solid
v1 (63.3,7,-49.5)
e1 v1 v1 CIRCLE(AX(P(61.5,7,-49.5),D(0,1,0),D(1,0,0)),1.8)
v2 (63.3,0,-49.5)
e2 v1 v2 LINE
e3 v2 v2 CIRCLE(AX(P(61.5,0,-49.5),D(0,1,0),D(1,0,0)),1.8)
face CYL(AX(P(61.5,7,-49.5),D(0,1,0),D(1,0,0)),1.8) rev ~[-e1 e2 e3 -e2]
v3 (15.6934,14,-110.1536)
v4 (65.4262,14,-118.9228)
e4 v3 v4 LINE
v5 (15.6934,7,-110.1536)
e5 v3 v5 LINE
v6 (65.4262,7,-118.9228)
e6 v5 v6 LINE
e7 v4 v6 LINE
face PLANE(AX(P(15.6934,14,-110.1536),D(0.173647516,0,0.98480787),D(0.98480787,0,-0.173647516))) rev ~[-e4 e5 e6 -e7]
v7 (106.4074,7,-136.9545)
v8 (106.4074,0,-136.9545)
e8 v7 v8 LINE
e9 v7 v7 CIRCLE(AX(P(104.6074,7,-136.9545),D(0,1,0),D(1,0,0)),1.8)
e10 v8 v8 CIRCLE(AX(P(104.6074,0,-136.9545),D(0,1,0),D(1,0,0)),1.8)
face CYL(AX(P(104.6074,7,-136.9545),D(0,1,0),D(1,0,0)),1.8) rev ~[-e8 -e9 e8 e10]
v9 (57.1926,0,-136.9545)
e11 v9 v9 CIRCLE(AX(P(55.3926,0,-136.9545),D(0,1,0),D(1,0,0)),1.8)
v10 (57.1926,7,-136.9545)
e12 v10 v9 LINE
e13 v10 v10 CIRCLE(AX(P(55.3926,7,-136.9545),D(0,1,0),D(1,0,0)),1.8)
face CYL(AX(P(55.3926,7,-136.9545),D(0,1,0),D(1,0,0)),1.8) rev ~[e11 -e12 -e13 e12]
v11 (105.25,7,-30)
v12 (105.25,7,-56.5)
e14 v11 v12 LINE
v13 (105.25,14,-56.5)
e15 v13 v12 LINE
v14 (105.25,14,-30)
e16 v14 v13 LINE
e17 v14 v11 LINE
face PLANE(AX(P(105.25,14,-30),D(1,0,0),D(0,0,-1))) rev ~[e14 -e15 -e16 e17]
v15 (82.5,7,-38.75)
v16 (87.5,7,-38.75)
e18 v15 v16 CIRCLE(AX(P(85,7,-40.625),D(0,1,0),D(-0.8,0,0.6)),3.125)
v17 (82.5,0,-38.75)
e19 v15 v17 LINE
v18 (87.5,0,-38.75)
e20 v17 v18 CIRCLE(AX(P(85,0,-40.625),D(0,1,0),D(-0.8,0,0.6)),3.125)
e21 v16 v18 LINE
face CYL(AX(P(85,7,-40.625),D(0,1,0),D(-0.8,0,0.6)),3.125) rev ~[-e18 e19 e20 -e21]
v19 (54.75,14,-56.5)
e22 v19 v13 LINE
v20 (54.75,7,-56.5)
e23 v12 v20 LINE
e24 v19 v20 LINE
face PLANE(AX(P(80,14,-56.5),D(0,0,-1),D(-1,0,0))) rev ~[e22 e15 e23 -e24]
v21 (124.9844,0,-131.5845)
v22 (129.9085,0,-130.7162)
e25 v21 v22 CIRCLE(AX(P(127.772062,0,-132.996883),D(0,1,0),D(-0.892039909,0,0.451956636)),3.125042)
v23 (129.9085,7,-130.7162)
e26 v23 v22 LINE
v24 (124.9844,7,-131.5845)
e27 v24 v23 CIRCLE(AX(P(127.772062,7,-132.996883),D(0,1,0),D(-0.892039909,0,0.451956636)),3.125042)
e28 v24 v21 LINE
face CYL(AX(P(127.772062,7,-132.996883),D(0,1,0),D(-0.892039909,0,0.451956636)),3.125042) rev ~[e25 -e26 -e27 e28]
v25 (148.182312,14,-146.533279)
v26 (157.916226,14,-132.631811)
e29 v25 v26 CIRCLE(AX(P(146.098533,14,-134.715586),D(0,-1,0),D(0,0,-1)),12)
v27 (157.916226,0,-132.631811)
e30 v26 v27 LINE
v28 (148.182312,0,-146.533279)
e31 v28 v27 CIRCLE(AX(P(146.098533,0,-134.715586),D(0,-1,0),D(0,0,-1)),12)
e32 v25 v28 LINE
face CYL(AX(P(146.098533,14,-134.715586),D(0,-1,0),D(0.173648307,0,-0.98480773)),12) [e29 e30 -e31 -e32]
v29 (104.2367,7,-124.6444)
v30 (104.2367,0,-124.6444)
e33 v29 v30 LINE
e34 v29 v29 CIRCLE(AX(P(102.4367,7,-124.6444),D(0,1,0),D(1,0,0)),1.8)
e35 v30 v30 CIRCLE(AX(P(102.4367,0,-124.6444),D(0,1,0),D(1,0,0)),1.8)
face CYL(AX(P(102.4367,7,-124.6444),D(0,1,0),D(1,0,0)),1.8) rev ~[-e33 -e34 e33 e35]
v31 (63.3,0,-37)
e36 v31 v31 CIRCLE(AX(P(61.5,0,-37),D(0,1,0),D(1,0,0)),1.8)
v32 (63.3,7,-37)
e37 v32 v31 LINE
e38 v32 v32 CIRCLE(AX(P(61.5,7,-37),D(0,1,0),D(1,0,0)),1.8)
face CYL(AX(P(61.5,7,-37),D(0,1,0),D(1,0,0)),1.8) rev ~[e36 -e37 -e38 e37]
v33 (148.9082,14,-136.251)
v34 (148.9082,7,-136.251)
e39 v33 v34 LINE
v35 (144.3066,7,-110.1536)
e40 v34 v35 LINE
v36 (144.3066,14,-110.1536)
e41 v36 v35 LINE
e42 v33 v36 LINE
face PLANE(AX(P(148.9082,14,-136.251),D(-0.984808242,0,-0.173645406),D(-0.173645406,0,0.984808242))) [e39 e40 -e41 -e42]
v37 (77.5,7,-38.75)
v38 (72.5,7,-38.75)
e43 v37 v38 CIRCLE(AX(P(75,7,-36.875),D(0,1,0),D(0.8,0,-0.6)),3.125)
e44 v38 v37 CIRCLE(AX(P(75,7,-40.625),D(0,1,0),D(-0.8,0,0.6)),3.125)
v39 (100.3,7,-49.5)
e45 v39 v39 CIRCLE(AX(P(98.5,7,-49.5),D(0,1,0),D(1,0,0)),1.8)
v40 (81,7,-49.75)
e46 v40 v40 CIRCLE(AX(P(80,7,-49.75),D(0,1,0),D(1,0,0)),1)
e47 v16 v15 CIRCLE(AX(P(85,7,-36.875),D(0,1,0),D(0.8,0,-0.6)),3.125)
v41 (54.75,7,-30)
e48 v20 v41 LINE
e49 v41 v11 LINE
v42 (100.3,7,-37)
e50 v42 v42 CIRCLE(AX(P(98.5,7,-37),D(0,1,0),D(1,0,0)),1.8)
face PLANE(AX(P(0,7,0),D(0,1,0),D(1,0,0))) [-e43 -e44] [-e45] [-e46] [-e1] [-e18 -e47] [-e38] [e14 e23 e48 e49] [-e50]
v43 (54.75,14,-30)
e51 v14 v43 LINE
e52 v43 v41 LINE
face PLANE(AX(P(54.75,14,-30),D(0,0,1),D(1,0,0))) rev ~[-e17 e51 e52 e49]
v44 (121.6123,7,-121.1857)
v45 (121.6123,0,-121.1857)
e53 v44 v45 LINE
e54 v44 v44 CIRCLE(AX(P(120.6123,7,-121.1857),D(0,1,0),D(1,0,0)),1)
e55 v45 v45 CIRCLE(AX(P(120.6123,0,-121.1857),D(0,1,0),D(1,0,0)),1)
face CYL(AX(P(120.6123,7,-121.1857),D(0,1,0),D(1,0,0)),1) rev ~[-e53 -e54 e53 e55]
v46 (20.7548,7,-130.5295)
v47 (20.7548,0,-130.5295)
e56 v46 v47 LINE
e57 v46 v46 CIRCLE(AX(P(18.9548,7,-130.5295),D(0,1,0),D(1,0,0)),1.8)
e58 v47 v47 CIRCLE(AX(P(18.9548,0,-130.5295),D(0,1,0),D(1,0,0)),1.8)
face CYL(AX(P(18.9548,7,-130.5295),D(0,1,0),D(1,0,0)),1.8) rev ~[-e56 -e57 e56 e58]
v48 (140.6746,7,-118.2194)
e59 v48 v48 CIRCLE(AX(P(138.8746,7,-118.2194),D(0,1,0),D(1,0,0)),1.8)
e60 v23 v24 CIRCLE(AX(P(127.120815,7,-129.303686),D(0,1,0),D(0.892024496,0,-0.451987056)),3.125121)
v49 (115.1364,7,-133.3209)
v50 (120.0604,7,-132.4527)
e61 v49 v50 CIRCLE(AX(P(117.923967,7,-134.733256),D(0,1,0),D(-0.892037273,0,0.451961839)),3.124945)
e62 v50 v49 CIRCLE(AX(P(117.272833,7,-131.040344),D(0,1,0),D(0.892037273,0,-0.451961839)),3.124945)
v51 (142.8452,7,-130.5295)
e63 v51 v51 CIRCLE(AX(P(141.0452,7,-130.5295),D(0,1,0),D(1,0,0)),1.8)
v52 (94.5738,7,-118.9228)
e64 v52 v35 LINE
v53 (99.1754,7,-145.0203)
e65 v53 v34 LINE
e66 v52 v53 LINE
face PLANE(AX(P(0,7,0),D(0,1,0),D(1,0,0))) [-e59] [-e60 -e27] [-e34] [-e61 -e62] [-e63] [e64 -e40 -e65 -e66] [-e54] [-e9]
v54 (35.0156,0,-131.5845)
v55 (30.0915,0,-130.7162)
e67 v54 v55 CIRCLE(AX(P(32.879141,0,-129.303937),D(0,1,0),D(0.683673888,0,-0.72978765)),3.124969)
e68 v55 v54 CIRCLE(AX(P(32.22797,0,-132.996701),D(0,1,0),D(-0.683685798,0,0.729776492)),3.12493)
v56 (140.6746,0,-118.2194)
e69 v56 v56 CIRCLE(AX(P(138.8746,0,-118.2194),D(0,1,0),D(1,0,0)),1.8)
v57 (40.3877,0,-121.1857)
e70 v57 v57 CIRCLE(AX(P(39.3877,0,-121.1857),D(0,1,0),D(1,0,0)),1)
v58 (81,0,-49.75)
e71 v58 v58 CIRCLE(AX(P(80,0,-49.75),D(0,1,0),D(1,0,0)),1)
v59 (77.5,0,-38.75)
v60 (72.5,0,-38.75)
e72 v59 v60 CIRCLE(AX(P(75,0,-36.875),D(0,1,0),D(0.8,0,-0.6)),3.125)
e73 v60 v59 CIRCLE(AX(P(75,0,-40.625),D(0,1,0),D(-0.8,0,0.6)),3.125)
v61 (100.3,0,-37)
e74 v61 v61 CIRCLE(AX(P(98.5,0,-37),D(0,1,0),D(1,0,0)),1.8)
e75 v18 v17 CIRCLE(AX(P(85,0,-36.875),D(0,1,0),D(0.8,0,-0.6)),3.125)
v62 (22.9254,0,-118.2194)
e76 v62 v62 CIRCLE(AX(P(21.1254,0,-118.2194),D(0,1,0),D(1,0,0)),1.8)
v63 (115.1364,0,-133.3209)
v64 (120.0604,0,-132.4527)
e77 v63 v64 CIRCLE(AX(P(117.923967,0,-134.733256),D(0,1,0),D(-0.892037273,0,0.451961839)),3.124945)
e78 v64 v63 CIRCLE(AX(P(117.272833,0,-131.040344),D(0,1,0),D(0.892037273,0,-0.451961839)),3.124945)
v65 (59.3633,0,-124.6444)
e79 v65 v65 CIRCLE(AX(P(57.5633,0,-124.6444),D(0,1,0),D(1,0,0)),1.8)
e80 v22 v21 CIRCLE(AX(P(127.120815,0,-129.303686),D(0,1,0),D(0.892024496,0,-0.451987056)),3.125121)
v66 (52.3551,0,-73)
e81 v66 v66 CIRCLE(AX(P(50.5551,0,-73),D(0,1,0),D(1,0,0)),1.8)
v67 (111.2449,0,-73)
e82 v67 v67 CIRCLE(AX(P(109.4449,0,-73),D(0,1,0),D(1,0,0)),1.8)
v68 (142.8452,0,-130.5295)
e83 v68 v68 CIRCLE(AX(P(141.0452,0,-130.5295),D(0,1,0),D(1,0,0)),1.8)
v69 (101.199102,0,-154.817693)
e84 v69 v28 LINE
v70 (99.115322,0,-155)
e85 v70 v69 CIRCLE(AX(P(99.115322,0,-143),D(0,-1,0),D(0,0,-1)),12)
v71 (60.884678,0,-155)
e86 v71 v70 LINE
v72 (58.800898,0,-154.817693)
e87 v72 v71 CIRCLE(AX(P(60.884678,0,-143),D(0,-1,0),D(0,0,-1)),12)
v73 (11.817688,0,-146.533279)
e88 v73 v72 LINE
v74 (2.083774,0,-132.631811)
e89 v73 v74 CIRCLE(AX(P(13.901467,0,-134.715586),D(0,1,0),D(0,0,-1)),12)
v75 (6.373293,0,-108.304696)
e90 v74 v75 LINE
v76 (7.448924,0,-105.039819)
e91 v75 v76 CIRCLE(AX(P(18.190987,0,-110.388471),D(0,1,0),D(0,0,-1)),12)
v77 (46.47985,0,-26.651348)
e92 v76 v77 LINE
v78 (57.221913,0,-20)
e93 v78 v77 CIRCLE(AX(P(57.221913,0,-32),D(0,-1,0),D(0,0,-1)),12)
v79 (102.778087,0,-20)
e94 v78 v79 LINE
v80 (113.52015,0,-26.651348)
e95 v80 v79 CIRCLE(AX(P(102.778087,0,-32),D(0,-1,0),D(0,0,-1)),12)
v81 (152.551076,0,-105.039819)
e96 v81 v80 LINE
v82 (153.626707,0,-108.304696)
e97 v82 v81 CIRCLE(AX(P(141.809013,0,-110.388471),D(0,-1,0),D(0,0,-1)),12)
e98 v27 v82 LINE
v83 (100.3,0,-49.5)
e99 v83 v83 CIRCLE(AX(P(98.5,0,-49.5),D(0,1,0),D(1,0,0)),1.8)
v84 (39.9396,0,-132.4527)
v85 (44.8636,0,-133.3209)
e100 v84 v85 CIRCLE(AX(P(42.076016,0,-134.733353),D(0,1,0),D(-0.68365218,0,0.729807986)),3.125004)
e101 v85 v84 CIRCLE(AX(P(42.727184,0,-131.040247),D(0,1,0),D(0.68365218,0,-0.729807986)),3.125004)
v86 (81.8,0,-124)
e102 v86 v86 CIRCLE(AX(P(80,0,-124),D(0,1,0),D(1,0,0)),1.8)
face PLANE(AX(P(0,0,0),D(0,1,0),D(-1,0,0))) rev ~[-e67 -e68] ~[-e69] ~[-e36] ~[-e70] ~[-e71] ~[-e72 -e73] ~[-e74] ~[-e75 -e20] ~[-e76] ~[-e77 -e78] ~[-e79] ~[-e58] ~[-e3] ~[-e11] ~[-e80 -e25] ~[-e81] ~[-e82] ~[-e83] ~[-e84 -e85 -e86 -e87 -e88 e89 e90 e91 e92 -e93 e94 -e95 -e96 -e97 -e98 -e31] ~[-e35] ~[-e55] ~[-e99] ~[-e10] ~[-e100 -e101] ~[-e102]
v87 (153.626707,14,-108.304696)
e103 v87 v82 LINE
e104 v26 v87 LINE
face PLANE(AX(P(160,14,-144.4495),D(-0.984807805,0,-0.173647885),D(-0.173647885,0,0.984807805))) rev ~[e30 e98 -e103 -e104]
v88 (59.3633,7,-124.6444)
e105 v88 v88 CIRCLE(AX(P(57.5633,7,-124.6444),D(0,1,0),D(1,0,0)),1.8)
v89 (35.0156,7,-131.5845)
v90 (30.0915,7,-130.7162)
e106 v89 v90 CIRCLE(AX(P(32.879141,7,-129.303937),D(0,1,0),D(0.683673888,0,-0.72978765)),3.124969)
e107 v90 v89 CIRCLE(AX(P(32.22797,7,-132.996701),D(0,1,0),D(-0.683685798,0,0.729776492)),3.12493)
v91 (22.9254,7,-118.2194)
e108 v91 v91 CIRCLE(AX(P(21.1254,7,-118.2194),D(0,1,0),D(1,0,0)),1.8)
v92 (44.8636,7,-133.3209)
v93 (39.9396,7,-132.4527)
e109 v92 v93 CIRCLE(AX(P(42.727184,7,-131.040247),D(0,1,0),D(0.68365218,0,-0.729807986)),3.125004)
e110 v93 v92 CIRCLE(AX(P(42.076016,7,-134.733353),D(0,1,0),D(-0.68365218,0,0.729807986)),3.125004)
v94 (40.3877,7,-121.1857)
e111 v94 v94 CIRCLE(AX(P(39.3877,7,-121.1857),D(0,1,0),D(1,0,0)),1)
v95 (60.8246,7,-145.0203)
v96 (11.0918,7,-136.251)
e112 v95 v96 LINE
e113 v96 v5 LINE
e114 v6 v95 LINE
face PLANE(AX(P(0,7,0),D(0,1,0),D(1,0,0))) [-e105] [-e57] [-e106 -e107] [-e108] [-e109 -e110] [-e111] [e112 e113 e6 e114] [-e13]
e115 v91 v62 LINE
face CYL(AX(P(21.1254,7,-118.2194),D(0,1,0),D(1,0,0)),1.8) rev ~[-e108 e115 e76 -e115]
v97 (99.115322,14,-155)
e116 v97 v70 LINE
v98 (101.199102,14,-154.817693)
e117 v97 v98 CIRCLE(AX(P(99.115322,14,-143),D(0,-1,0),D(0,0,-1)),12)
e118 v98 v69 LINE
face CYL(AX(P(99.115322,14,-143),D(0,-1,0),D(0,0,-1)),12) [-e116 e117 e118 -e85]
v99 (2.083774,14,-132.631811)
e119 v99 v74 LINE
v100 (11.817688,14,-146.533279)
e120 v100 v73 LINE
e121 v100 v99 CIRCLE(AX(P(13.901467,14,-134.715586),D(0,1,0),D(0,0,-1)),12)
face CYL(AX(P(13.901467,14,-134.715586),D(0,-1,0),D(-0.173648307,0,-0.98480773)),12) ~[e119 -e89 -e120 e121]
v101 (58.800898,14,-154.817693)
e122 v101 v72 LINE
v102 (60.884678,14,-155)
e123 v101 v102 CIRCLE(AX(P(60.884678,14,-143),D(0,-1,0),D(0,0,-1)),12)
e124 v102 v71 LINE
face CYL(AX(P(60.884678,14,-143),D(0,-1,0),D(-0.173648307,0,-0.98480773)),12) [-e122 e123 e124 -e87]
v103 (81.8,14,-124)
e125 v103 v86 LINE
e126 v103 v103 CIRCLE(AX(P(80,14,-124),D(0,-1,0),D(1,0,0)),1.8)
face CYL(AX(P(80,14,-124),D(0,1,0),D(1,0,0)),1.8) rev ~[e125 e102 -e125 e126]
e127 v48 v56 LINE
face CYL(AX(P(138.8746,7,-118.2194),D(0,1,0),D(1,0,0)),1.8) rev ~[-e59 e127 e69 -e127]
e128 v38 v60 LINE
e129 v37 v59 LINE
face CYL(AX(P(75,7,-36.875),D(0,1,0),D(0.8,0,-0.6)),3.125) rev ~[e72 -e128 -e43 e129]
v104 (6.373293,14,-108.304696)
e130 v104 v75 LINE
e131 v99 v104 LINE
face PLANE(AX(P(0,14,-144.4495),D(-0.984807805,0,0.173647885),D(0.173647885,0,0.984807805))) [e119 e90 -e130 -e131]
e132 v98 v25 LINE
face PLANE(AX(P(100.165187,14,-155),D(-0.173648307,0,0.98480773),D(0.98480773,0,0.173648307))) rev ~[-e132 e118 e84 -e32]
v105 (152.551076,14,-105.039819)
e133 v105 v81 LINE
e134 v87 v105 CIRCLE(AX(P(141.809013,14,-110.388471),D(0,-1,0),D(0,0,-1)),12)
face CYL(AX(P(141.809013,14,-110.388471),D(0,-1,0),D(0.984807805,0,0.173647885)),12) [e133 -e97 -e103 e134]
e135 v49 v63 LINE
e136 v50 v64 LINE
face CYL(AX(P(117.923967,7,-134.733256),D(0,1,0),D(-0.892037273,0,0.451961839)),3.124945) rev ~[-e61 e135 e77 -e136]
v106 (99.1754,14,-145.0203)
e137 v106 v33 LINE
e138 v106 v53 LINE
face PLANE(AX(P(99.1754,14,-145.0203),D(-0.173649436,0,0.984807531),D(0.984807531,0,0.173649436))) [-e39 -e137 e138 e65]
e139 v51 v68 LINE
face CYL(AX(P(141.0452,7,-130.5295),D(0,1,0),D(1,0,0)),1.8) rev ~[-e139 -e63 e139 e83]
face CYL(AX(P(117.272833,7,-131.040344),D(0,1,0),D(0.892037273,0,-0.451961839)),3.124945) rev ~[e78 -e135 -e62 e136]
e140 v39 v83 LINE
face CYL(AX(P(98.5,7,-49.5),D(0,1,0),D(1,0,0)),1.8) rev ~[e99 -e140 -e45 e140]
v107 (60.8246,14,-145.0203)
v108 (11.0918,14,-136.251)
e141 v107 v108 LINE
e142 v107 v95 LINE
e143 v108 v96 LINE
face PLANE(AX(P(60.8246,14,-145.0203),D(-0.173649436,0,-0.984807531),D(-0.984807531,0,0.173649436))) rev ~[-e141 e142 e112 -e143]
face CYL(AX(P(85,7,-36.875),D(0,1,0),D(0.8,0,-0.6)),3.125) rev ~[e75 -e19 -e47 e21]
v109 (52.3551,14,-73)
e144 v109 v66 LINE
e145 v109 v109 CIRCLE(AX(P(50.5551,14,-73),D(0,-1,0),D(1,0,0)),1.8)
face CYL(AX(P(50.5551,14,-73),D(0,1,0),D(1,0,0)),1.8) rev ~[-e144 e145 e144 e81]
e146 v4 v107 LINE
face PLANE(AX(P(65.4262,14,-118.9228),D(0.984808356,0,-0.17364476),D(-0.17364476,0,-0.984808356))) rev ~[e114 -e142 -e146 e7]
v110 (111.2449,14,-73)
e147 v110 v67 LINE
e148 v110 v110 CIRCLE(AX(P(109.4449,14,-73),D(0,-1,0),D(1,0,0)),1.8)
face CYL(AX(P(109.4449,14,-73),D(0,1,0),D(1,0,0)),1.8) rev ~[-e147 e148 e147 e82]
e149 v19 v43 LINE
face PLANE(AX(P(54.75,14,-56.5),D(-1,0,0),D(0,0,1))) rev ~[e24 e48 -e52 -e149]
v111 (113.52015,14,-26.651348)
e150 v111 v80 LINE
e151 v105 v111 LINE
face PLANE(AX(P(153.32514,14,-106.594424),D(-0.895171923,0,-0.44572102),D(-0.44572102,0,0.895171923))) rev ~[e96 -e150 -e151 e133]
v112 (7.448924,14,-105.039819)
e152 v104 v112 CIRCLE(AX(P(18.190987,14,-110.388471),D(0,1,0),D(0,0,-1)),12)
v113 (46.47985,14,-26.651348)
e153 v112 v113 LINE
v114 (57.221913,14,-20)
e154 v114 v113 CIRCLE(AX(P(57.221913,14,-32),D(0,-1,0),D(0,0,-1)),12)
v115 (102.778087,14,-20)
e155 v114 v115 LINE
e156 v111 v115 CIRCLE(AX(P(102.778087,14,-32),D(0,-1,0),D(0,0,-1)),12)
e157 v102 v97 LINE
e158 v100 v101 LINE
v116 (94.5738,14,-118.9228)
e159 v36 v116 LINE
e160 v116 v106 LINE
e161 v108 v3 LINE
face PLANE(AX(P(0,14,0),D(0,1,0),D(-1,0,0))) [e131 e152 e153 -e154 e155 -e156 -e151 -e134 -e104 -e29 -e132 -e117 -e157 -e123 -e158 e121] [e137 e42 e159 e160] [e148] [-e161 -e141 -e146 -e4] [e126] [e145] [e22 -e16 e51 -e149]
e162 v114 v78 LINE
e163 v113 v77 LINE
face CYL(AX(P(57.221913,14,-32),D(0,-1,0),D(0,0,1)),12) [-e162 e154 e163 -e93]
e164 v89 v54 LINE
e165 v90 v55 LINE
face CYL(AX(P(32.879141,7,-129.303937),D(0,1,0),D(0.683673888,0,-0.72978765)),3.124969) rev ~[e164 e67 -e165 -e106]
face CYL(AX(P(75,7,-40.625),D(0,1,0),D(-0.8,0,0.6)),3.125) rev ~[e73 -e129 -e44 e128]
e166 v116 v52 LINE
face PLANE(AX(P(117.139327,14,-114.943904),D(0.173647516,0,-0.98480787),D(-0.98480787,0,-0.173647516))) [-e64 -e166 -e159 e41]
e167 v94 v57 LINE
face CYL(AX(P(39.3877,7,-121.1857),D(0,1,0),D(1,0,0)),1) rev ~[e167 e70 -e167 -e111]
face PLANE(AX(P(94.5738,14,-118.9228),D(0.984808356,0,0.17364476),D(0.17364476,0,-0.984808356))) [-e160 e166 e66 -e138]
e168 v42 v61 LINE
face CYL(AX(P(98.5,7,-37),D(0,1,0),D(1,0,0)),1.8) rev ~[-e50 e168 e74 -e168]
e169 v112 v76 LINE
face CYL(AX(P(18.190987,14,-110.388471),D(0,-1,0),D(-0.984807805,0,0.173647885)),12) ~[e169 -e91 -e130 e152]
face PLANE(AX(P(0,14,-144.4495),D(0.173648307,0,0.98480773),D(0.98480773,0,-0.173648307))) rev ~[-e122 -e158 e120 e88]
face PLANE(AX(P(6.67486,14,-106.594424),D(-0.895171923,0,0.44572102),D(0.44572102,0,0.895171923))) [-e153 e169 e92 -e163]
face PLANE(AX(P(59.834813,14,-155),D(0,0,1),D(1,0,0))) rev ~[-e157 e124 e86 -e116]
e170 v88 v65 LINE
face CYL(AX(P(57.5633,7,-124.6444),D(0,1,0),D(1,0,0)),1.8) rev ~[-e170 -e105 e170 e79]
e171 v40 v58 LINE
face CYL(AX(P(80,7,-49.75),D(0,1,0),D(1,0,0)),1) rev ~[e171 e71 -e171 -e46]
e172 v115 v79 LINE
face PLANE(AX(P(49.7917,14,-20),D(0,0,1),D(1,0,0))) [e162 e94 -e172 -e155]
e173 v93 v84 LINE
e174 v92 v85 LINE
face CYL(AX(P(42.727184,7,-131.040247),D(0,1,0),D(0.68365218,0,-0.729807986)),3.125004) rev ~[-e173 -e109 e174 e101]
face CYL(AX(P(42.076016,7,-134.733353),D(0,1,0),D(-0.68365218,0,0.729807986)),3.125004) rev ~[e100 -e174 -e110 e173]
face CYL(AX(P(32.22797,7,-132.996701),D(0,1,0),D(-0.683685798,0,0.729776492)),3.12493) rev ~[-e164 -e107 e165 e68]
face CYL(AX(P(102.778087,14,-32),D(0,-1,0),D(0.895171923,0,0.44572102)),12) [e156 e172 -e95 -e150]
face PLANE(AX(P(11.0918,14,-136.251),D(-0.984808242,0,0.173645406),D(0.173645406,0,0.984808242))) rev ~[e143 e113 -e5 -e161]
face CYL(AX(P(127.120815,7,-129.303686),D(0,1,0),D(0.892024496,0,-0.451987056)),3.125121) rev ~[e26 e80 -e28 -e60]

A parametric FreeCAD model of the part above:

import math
import FreeCAD as App
import Part
import Sketcher

V = App.Vector
Q = App.Units.Quantity


def edges_at(feature, points):
    """Names of the edges that pass closest to the given points."""
    edges = feature.Shape.Edges
    near = lambda p: min(range(len(edges)), key=lambda i: edges[i].distToShape(Part.Vertex(*p))[0])
    return sorted({f"Edge{near(p) + 1}" for p in points})

doc = App.newDocument("Part")
body = doc.addObject("PartDesign::Body", "Body")

# Sketch on XZ plane
sketch1 = body.newObject("Sketcher::SketchObject", "Sketch")
sketch1.AttachmentSupport = (doc.getObject("XZ_Plane"), [""])
sketch1.MapMode = "FlatFace"
sketch1.addGeometry(Part.LineSegment(V(0, -160, 0), V(0, 0, 0)), False)
sketch1.addGeometry(Part.LineSegment(V(0, 0, 0), V(160, 0, 0)), False)
sketch1.addGeometry(Part.LineSegment(V(160, 0, 0), V(160, -160, 0)), False)
sketch1.addGeometry(Part.LineSegment(V(160, -160, 0), V(0, -160, 0)), False)
sketch1.addConstraint(Sketcher.Constraint("Coincident", 0, 2, 1, 1))
sketch1.addConstraint(Sketcher.Constraint("Coincident", 1, 2, 2, 1))
sketch1.addConstraint(Sketcher.Constraint("Coincident", 2, 2, 3, 1))
sketch1.addConstraint(Sketcher.Constraint("Coincident", 3, 2, 0, 1))
sketch1.addConstraint(Sketcher.Constraint("Vertical", 0))
sketch1.addConstraint(Sketcher.Constraint("Horizontal", 1))
sketch1.addConstraint(Sketcher.Constraint("Vertical", 2))
sketch1.addConstraint(Sketcher.Constraint("Horizontal", 3))
sketch1.addConstraint(Sketcher.Constraint("Coincident", 0, 2, -1, 1))
sketch1.addConstraint(Sketcher.Constraint("Equal", 3, 0))
sketch1.addConstraint(Sketcher.Constraint("DistanceX", 1, 1, 1, 2, Q("160 mm")))
pad1 = body.newObject("PartDesign::Pad", "Pad")
pad1.Profile = sketch1
pad1.Length = 14
pad1.Reversed = True

# Sketch on XZ plane
sketch2 = body.newObject("Sketcher::SketchObject", "Sketch001")
sketch2.AttachmentSupport = (doc.getObject("XZ_Plane"), [""])
sketch2.MapMode = "FlatFace"
sketch2.AttachmentOffset = App.Placement(V(0, 0, -14), App.Rotation())
sketch2.addGeometry(Part.LineSegment(V(55, -56, 0), V(55, -30, 0)), False)
sketch2.addGeometry(Part.LineSegment(V(55, -30, 0), V(105, -30, 0)), False)
sketch2.addGeometry(Part.LineSegment(V(105, -30, 0), V(105, -56, 0)), False)
sketch2.addGeometry(Part.LineSegment(V(105, -56, 0), V(55, -56, 0)), False)
sketch2.addGeometry(Part.LineSegment(V(95, -119, 0), V(144, -110, 0)), False)
sketch2.addGeometry(Part.LineSegment(V(144, -110, 0), V(149, -136, 0)), False)
sketch2.addGeometry(Part.LineSegment(V(149, -136, 0), V(99, -145, 0)), False)
sketch2.addGeometry(Part.LineSegment(V(99, -145, 0), V(95, -119, 0)), False)
sketch2.addGeometry(Part.LineSegment(V(61, -145, 0), V(11, -136, 0)), False)
sketch2.addGeometry(Part.LineSegment(V(11, -136, 0), V(16, -110, 0)), False)
sketch2.addGeometry(Part.LineSegment(V(16, -110, 0), V(65, -119, 0)), False)
sketch2.addGeometry(Part.LineSegment(V(65, -119, 0), V(61, -145, 0)), False)
sketch2.addConstraint(Sketcher.Constraint("Coincident", 0, 2, 1, 1))
sketch2.addConstraint(Sketcher.Constraint("Coincident", 1, 2, 2, 1))
sketch2.addConstraint(Sketcher.Constraint("Coincident", 2, 2, 3, 1))
sketch2.addConstraint(Sketcher.Constraint("Coincident", 3, 2, 0, 1))
sketch2.addConstraint(Sketcher.Constraint("Coincident", 4, 2, 5, 1))
sketch2.addConstraint(Sketcher.Constraint("Coincident", 5, 2, 6, 1))
sketch2.addConstraint(Sketcher.Constraint("Coincident", 6, 2, 7, 1))
sketch2.addConstraint(Sketcher.Constraint("Coincident", 7, 2, 4, 1))
sketch2.addConstraint(Sketcher.Constraint("Coincident", 8, 2, 9, 1))
sketch2.addConstraint(Sketcher.Constraint("Coincident", 9, 2, 10, 1))
sketch2.addConstraint(Sketcher.Constraint("Coincident", 10, 2, 11, 1))
sketch2.addConstraint(Sketcher.Constraint("Coincident", 11, 2, 8, 1))
sketch2.addConstraint(Sketcher.Constraint("Vertical", 0))
sketch2.addConstraint(Sketcher.Constraint("Horizontal", 1))
sketch2.addConstraint(Sketcher.Constraint("Vertical", 2))
sketch2.addConstraint(Sketcher.Constraint("Horizontal", 3))
sketch2.addConstraint(Sketcher.Constraint("Perpendicular", 4, 5))
sketch2.addConstraint(Sketcher.Constraint("Perpendicular", 5, 6))
sketch2.addConstraint(Sketcher.Constraint("Perpendicular", 6, 7))
sketch2.addConstraint(Sketcher.Constraint("Perpendicular", 8, 9))
sketch2.addConstraint(Sketcher.Constraint("Perpendicular", 9, 10))
sketch2.addConstraint(Sketcher.Constraint("Perpendicular", 10, 11))
sketch2.addConstraint(Sketcher.Constraint("Horizontal", 5, 2, 8, 2))
sketch2.addConstraint(Sketcher.Constraint("Horizontal", 4, 2, 9, 2))
sketch2.addConstraint(Sketcher.Constraint("Horizontal", 7, 2, 10, 2))
sketch2.addConstraint(Sketcher.Constraint("Equal", 6, 8))
sketch2.addConstraint(Sketcher.Constraint("Angle", 5, Q("-80.0002 deg")))
sketch2.addConstraint(Sketcher.Constraint("DistanceX", 1, 1, 1, 2, Q("50.5 mm")))
sketch2.addConstraint(Sketcher.Constraint("DistanceY", 0, 1, 0, 2, Q("26.5 mm")))
sketch2.addConstraint(Sketcher.Constraint("DistanceY", 0, 2, -1, 1, Q("30 mm")))
sketch2.addConstraint(Sketcher.Constraint("Distance", 4, Q("50.5 mm")))
sketch2.addConstraint(Sketcher.Constraint("Distance", 5, Q("26.5 mm")))
sketch2.addConstraint(Sketcher.Constraint("DistanceX", -1, 1, 8, 2, Q("11.0918 mm")))
sketch2.addConstraint(Sketcher.Constraint("DistanceX", -1, 1, 0, 2, Q("54.75 mm")))
sketch2.addConstraint(Sketcher.Constraint("DistanceY", 5, 2, -1, 1, Q("136.251 mm")))
sketch2.addConstraint(Sketcher.Constraint("DistanceX", 8, 2, 7, 2, Q("83.482 mm")))
pocket1 = body.newObject("PartDesign::Pocket", "Pocket")
pocket1.Profile = sketch2
pocket1.Length = 7
pocket1.Reversed = True

# Sketch on XZ plane
sketch3 = body.newObject("Sketcher::SketchObject", "Sketch002")
sketch3.AttachmentSupport = (doc.getObject("XZ_Plane"), [""])
sketch3.MapMode = "FlatFace"
sketch3.AttachmentOffset = App.Placement(V(0, 0, -7), App.Rotation())
sketch3.addGeometry(Part.Circle(V(21.1, -118.2, 0), V(0, 0, 1), 1.8), False)
sketch3.addGeometry(Part.Circle(V(19, -130.5, 0), V(0, 0, 1), 1.8), False)
sketch3.addGeometry(Part.Circle(V(57.6, -124.6, 0), V(0, 0, 1), 1.8), False)
sketch3.addGeometry(Part.Circle(V(55.4, -137, 0), V(0, 0, 1), 1.8), False)
sketch3.addGeometry(Part.Circle(V(138.9, -118.2, 0), V(0, 0, 1), 1.8), False)
sketch3.addGeometry(Part.Circle(V(141, -130.5, 0), V(0, 0, 1), 1.8), False)
sketch3.addGeometry(Part.Circle(V(102.4, -124.6, 0), V(0, 0, 1), 1.8), False)
sketch3.addGeometry(Part.Circle(V(104.6, -137, 0), V(0, 0, 1), 1.8), False)
sketch3.addGeometry(Part.Circle(V(61.5, -37, 0), V(0, 0, 1), 1.8), False)
sketch3.addGeometry(Part.Circle(V(61.5, -49.5, 0), V(0, 0, 1), 1.8), False)
sketch3.addGeometry(Part.Circle(V(98.5, -37, 0), V(0, 0, 1), 1.8), False)
sketch3.addGeometry(Part.Circle(V(98.5, -49.5, 0), V(0, 0, 1), 1.8), False)
sketch3.addGeometry(Part.Circle(V(120.6, -121.2, 0), V(0, 0, 1), 1), False)
sketch3.addGeometry(Part.ArcOfCircle(Part.Circle(V(127.1, -129.3, 0), V(0, 0, 1), 3.1), math.radians(-133), math.radians(-27)), False)
sketch3.addGeometry(Part.ArcOfCircle(Part.Circle(V(127.8, -133, 0), V(0, 0, 1), 3.1), math.radians(47), math.radians(153)), False)
sketch3.addGeometry(Part.ArcOfCircle(Part.Circle(V(117.3, -131, 0), V(0, 0, 1), 3.1), math.radians(-133), math.radians(-27)), False)
sketch3.addGeometry(Part.ArcOfCircle(Part.Circle(V(117.9, -134.7, 0), V(0, 0, 1), 3.1), math.radians(47), math.radians(153)), False)
sketch3.addGeometry(Part.Circle(V(39.4, -121.2, 0), V(0, 0, 1), 1), False)
sketch3.addGeometry(Part.ArcOfCircle(Part.Circle(V(32.9, -129.3, 0), V(0, 0, 1), 3.1), math.radians(-153), math.radians(-47)), False)
sketch3.addGeometry(Part.ArcOfCircle(Part.Circle(V(32.2, -133, 0), V(0, 0, 1), 3.1), math.radians(27), math.radians(133)), False)
sketch3.addGeometry(Part.ArcOfCircle(Part.Circle(V(42.7, -131, 0), V(0, 0, 1), 3.1), math.radians(-153), math.radians(-47)), False)
sketch3.addGeometry(Part.ArcOfCircle(Part.Circle(V(42.1, -134.7, 0), V(0, 0, 1), 3.1), math.radians(27), math.radians(133)), False)
sketch3.addGeometry(Part.Circle(V(80, -49.8, 0), V(0, 0, 1), 1), False)
sketch3.addGeometry(Part.ArcOfCircle(Part.Circle(V(85, -36.9, 0), V(0, 0, 1), 3.1), math.radians(-143), math.radians(-37)), False)
sketch3.addGeometry(Part.ArcOfCircle(Part.Circle(V(85, -40.6, 0), V(0, 0, 1), 3.1), math.radians(37), math.radians(143)), False)
sketch3.addGeometry(Part.ArcOfCircle(Part.Circle(V(75, -36.9, 0), V(0, 0, 1), 3.1), math.radians(-143), math.radians(-37)), False)
sketch3.addGeometry(Part.ArcOfCircle(Part.Circle(V(75, -40.6, 0), V(0, 0, 1), 3.1), math.radians(37), math.radians(143)), False)
sketch3.addConstraint(Sketcher.Constraint("Coincident", 13, 1, 14, 2))
sketch3.addConstraint(Sketcher.Constraint("Coincident", 14, 1, 13, 2))
sketch3.addConstraint(Sketcher.Constraint("Coincident", 15, 1, 16, 2))
sketch3.addConstraint(Sketcher.Constraint("Coincident", 16, 1, 15, 2))
sketch3.addConstraint(Sketcher.Constraint("Coincident", 18, 1, 19, 2))
sketch3.addConstraint(Sketcher.Constraint("Coincident", 19, 1, 18, 2))
sketch3.addConstraint(Sketcher.Constraint("Coincident", 20, 1, 21, 2))
sketch3.addConstraint(Sketcher.Constraint("Coincident", 21, 1, 20, 2))
sketch3.addConstraint(Sketcher.Constraint("Coincident", 23, 1, 24, 2))
sketch3.addConstraint(Sketcher.Constraint("Coincident", 24, 1, 23, 2))
sketch3.addConstraint(Sketcher.Constraint("Coincident", 25, 1, 26, 2))
sketch3.addConstraint(Sketcher.Constraint("Coincident", 26, 1, 25, 2))
sketch3.addConstraint(Sketcher.Constraint("Equal", 0, 1))
sketch3.addConstraint(Sketcher.Constraint("Equal", 1, 2))
sketch3.addConstraint(Sketcher.Constraint("Equal", 2, 3))
sketch3.addConstraint(Sketcher.Constraint("Equal", 3, 4))
sketch3.addConstraint(Sketcher.Constraint("Equal", 4, 5))
sketch3.addConstraint(Sketcher.Constraint("Equal", 5, 6))
sketch3.addConstraint(Sketcher.Constraint("Equal", 6, 7))
sketch3.addConstraint(Sketcher.Constraint("Equal", 7, 8))
sketch3.addConstraint(Sketcher.Constraint("Equal", 8, 9))
sketch3.addConstraint(Sketcher.Constraint("Equal", 9, 10))
sketch3.addConstraint(Sketcher.Constraint("Equal", 10, 11))
sketch3.addConstraint(Sketcher.Constraint("Equal", 13, 14))
sketch3.addConstraint(Sketcher.Constraint("Equal", 14, 15))
sketch3.addConstraint(Sketcher.Constraint("Equal", 15, 16))
sketch3.addConstraint(Sketcher.Constraint("Equal", 12, 17))
sketch3.addConstraint(Sketcher.Constraint("Equal", 16, 18))
sketch3.addConstraint(Sketcher.Constraint("Equal", 18, 19))
sketch3.addConstraint(Sketcher.Constraint("Equal", 19, 20))
sketch3.addConstraint(Sketcher.Constraint("Equal", 20, 21))
sketch3.addConstraint(Sketcher.Constraint("Equal", 17, 22))
sketch3.addConstraint(Sketcher.Constraint("Equal", 21, 23))
sketch3.addConstraint(Sketcher.Constraint("Equal", 23, 24))
sketch3.addConstraint(Sketcher.Constraint("Equal", 24, 25))
sketch3.addConstraint(Sketcher.Constraint("Equal", 25, 26))
sketch3.addConstraint(Sketcher.Constraint("Horizontal", 0, 3, 4, 3))
sketch3.addConstraint(Sketcher.Constraint("Horizontal", 1, 3, 5, 3))
sketch3.addConstraint(Sketcher.Constraint("Horizontal", 2, 3, 6, 3))
sketch3.addConstraint(Sketcher.Constraint("Horizontal", 3, 3, 7, 3))
sketch3.addConstraint(Sketcher.Constraint("Horizontal", 8, 3, 10, 3))
sketch3.addConstraint(Sketcher.Constraint("Horizontal", 9, 3, 11, 3))
sketch3.addConstraint(Sketcher.Constraint("Horizontal", 12, 3, 17, 3))
sketch3.addConstraint(Sketcher.Constraint("Horizontal", 13, 3, 18, 3))
sketch3.addConstraint(Sketcher.Constraint("Horizontal", 14, 3, 19, 3))
sketch3.addConstraint(Sketcher.Constraint("Horizontal", 15, 3, 20, 3))
sketch3.addConstraint(Sketcher.Constraint("Horizontal", 16, 3, 21, 3))
sketch3.addConstraint(Sketcher.Constraint("Horizontal", 23, 3, 25, 3))
sketch3.addConstraint(Sketcher.Constraint("Horizontal", 24, 3, 26, 3))
sketch3.addConstraint(Sketcher.Constraint("Horizontal", 14, 1, 18, 1))
sketch3.addConstraint(Sketcher.Constraint("Horizontal", 16, 1, 20, 1))
sketch3.addConstraint(Sketcher.Constraint("Horizontal", 23, 1, 24, 1))
sketch3.addConstraint(Sketcher.Constraint("Horizontal", 24, 1, 25, 1))
sketch3.addConstraint(Sketcher.Constraint("Vertical", 8, 3, 9, 3))
sketch3.addConstraint(Sketcher.Constraint("Vertical", 10, 3, 11, 3))
sketch3.addConstraint(Sketcher.Constraint("Diameter", 12, Q("2 mm")))
sketch3.addConstraint(Sketcher.Constraint("Diameter", 0, Q("3.6 mm")))
sketch3.addConstraint(Sketcher.Constraint("DistanceX", 25, 3, 23, 3, Q("10 mm")))
sketch3.addConstraint(Sketcher.Constraint("DistanceX", 23, 1, 23, 3, Q("2.5 mm")))
sketch3.addConstraint(Sketcher.Constraint("DistanceX", 22, 3, 23, 1, Q("2.5 mm")))
sketch3.addConstraint(Sketcher.Constraint("DistanceY", 8, 3, -1, 1, Q("37 mm")))
sketch3.addConstraint(Sketcher.Constraint("DistanceX", -1, 1, 22, 3, Q("80 mm")))
sketch3.addConstraint(Sketcher.Constraint("Radius", 13, Q("3.125 mm")))
sketch3.addConstraint(Sketcher.Constraint("DistanceX", 8, 3, 10, 3, Q("37 mm")))
sketch3.addConstraint(Sketcher.Constraint("DistanceY", 22, 3, 23, 1, Q("11 mm")))
sketch3.addConstraint(Sketcher.Constraint("DistanceX", 24, 1, 10, 3, Q("11 mm")))
sketch3.addConstraint(Sketcher.Constraint("DistanceY", 9, 3, -1, 1, Q("49.5 mm")))
sketch3.addConstraint(Sketcher.Constraint("DistanceY", 22, 3, -1, 1, Q("49.75 mm")))
sketch3.addConstraint(Sketcher.Constraint("DistanceY", 1, 3, 0, 3, Q("12.31 mm")))
sketch3.addConstraint(Sketcher.Constraint("DistanceY", 3, 3, 2, 3, Q("12.31 mm")))
sketch3.addConstraint(Sketcher.Constraint("DistanceX", -1, 1, 13, 3, Q("127.121 mm")))
sketch3.addConstraint(Sketcher.Constraint("DistanceX", -1, 1, 14, 3, Q("127.772 mm")))
sketch3.addConstraint(Sketcher.Constraint("DistanceX", -1, 1, 16, 3, Q("117.924 mm")))
sketch3.addConstraint(Sketcher.Constraint("DistanceX", -1, 1, 18, 3, Q("32.879 mm")))
sketch3.addConstraint(Sketcher.Constraint("DistanceX", -1, 1, 21, 3, Q("42.076 mm")))
sketch3.addConstraint(Sketcher.Constraint("DistanceY", 15, 1, -1, 1, Q("133.321 mm")))
sketch3.addConstraint(Sketcher.Constraint("DistanceX", 0, 3, 2, 3, Q("36.438 mm")))
sketch3.addConstraint(Sketcher.Constraint("DistanceY", 2, 3, 0, 3, Q("6.425 mm")))
sketch3.addConstraint(Sketcher.Constraint("DistanceX", 3, 3, 4, 3, Q("83.482 mm")))
sketch3.addConstraint(Sketcher.Constraint("DistanceX", 2, 3, 5, 3, Q("83.482 mm")))
sketch3.addConstraint(Sketcher.Constraint("DistanceX", 6, 3, 4, 3, Q("36.438 mm")))
sketch3.addConstraint(Sketcher.Constraint("DistanceX", 2, 3, 7, 3, Q("47.044 mm")))
sketch3.addConstraint(Sketcher.Constraint("DistanceX", 12, 3, 5, 3, Q("20.433 mm")))
sketch3.addConstraint(Sketcher.Constraint("DistanceY", 13, 3, 12, 3, Q("8.118 mm")))
sketch3.addConstraint(Sketcher.Constraint("DistanceY", 14, 3, 13, 3, Q("3.693 mm")))
sketch3.addConstraint(Sketcher.Constraint("DistanceX", 15, 3, 13, 3, Q("9.848 mm")))
sketch3.addConstraint(Sketcher.Constraint("DistanceX", 6, 3, 15, 3, Q("14.836 mm")))
sketch3.addConstraint(Sketcher.Constraint("DistanceY", 15, 3, 6, 3, Q("6.396 mm")))
sketch3.addConstraint(Sketcher.Constraint("DistanceY", 16, 3, 15, 3, Q("3.693 mm")))
sketch3.addConstraint(Sketcher.Constraint("DistanceX", 1, 3, 17, 3, Q("20.433 mm")))
sketch3.addConstraint(Sketcher.Constraint("DistanceX", 17, 3, 3, 3, Q("16.005 mm")))
sketch3.addConstraint(Sketcher.Constraint("DistanceX", 20, 3, 2, 3, Q("14.836 mm")))
sketch3.addConstraint(Sketcher.Constraint("DistanceY", 16, 3, 14, 1, Q("4.017 mm")))
pocket2 = body.newObject("PartDesign::Pocket", "Pocket001")
pocket2.Profile = sketch3
pocket2.Length = 7
pocket2.Reversed = True

# Sketch on XZ plane
sketch4 = body.newObject("Sketcher::SketchObject", "Sketch003")
sketch4.AttachmentSupport = (doc.getObject("XZ_Plane"), [""])
sketch4.MapMode = "FlatFace"
sketch4.AttachmentOffset = App.Placement(V(0, 0, -14), App.Rotation())
sketch4.addGeometry(Part.LineSegment(V(0, -160, 0), V(0, -144, 0)), False)
sketch4.addGeometry(Part.LineSegment(V(0, -144, 0), V(60, -155, 0)), False)
sketch4.addGeometry(Part.LineSegment(V(60, -155, 0), V(100, -155, 0)), False)
sketch4.addGeometry(Part.LineSegment(V(100, -155, 0), V(160, -144, 0)), False)
sketch4.addGeometry(Part.LineSegment(V(160, -144, 0), V(160, -160, 0)), False)
sketch4.addGeometry(Part.LineSegment(V(160, -160, 0), V(0, -160, 0)), False)
sketch4.addGeometry(Part.LineSegment(V(7, -107, 0), V(0, -144, 0)), False)
sketch4.addGeometry(Part.LineSegment(V(0, -144, 0), V(0, 0, 0)), False)
sketch4.addGeometry(Part.LineSegment(V(0, 0, 0), V(160, 0, 0)), False)
sketch4.addGeometry(Part.LineSegment(V(160, 0, 0), V(160, -144, 0)), False)
sketch4.addGeometry(Part.LineSegment(V(160, -144, 0), V(153, -107, 0)), False)
sketch4.addGeometry(Part.LineSegment(V(153, -107, 0), V(110, -20, 0)), False)
sketch4.addGeometry(Part.LineSegment(V(110, -20, 0), V(50, -20, 0)), False)
sketch4.addGeometry(Part.LineSegment(V(50, -20, 0), V(7, -107, 0)), False)
sketch4.addConstraint(Sketcher.Constraint("Coincident", 0, 2, 1, 1))
sketch4.addConstraint(Sketcher.Constraint("Coincident", 1, 2, 2, 1))
sketch4.addConstraint(Sketcher.Constraint("Coincident", 2, 2, 3, 1))
sketch4.addConstraint(Sketcher.Constraint("Coincident", 3, 2, 4, 1))
sketch4.addConstraint(Sketcher.Constraint("Coincident", 4, 2, 5, 1))
sketch4.addConstraint(Sketcher.Constraint("Coincident", 5, 2, 0, 1))
sketch4.addConstraint(Sketcher.Constraint("Coincident", 6, 2, 7, 1))
sketch4.addConstraint(Sketcher.Constraint("Coincident", 7, 2, 8, 1))
sketch4.addConstraint(Sketcher.Constraint("Coincident", 8, 2, 9, 1))
sketch4.addConstraint(Sketcher.Constraint("Coincident", 9, 2, 10, 1))
sketch4.addConstraint(Sketcher.Constraint("Coincident", 10, 2, 11, 1))
sketch4.addConstraint(Sketcher.Constraint("Coincident", 11, 2, 12, 1))
sketch4.addConstraint(Sketcher.Constraint("Coincident", 12, 2, 13, 1))
sketch4.addConstraint(Sketcher.Constraint("Coincident", 13, 2, 6, 1))
sketch4.addConstraint(Sketcher.Constraint("Vertical", 0))
sketch4.addConstraint(Sketcher.Constraint("Horizontal", 2))
sketch4.addConstraint(Sketcher.Constraint("Vertical", 4))
sketch4.addConstraint(Sketcher.Constraint("Horizontal", 5))
sketch4.addConstraint(Sketcher.Constraint("Vertical", 7))
sketch4.addConstraint(Sketcher.Constraint("Horizontal", 8))
sketch4.addConstraint(Sketcher.Constraint("Vertical", 9))
sketch4.addConstraint(Sketcher.Constraint("Horizontal", 12))
sketch4.addConstraint(Sketcher.Constraint("Coincident", 7, 2, -1, 1))
sketch4.addConstraint(Sketcher.Constraint("Coincident", 6, 2, 0, 2))
sketch4.addConstraint(Sketcher.Constraint("Coincident", 9, 2, 3, 2))
sketch4.addConstraint(Sketcher.Constraint("Perpendicular", 1, 6))
sketch4.addConstraint(Sketcher.Constraint("Perpendicular", 3, 10))
sketch4.addConstraint(Sketcher.Constraint("Horizontal", 0, 2, 3, 2))
sketch4.addConstraint(Sketcher.Constraint("Horizontal", 10, 2, 13, 2))
sketch4.addConstraint(Sketcher.Constraint("Equal", 1, 3))
sketch4.addConstraint(Sketcher.Constraint("Equal", 11, 13))
sketch4.addConstraint(Sketcher.Constraint("Angle", 1, Q("-10 deg")))
sketch4.addConstraint(Sketcher.Constraint("DistanceY", 4, 2, 2, 2, Q("5 mm")))
sketch4.addConstraint(Sketcher.Constraint("DistanceX", 5, 2, 5, 1, Q("160 mm")))
sketch4.addConstraint(Sketcher.Constraint("DistanceY", 1, 2, -1, 1, Q("155 mm")))
sketch4.addConstraint(Sketcher.Constraint("DistanceY", 11, 2, -1, 1, Q("20 mm")))
sketch4.addConstraint(Sketcher.Constraint("Angle", 11, Q("116.4695 deg")))
sketch4.addConstraint(Sketcher.Constraint("DistanceX", 2, 2, 10, 2, Q("53.16 mm")))
sketch4.addConstraint(Sketcher.Constraint("Distance", 6, Q("38.439 mm")))
pocket3 = body.newObject("PartDesign::Pocket", "Pocket002")
pocket3.Profile = sketch4
pocket3.Type = "ThroughAll"
pocket3.Reversed = True
doc.recompute()

fillet = body.newObject("PartDesign::Fillet", "Fillet")
fillet.Base = (pocket3, edges_at(pocket3, [
    (110.208, 7, -20),
    (49.792, 7, -20),
    (0, 7, -144.45),
    (6.675, 7, -106.594),
    (59.835, 7, -155),
    (100.165, 7, -155),
    (160, 7, -144.45),
    (153.325, 7, -106.594),
]))
fillet.Radius = 12

# Sketch on XZ plane
sketch5 = body.newObject("Sketcher::SketchObject", "Sketch004")
sketch5.AttachmentSupport = (doc.getObject("XZ_Plane"), [""])
sketch5.MapMode = "FlatFace"
sketch5.AttachmentOffset = App.Placement(V(0, 0, -14), App.Rotation())
sketch5.addGeometry(Part.Circle(V(80, -124, 0), V(0, 0, 1), 1.8), False)
sketch5.addGeometry(Part.Circle(V(109.4, -73, 0), V(0, 0, 1), 1.8), False)
sketch5.addGeometry(Part.Circle(V(50.6, -73, 0), V(0, 0, 1), 1.8), False)
sketch5.addConstraint(Sketcher.Constraint("Equal", 0, 1))
sketch5.addConstraint(Sketcher.Constraint("Equal", 1, 2))
sketch5.addConstraint(Sketcher.Constraint("Horizontal", 1, 3, 2, 3))
sketch5.addConstraint(Sketcher.Constraint("Diameter", 0, Q("3.6 mm")))
sketch5.addConstraint(Sketcher.Constraint("DistanceX", -1, 1, 0, 3, Q("80 mm")))
sketch5.addConstraint(Sketcher.Constraint("DistanceY", 0, 3, -1, 1, Q("124 mm")))
sketch5.addConstraint(Sketcher.Constraint("DistanceY", 1, 3, -1, 1, Q("73 mm")))
sketch5.addConstraint(Sketcher.Constraint("DistanceX", -1, 1, 1, 3, Q("109.445 mm")))
sketch5.addConstraint(Sketcher.Constraint("DistanceX", -1, 1, 2, 3, Q("50.555 mm")))
pocket4 = body.newObject("PartDesign::Pocket", "Pocket003")
pocket4.Profile = sketch5
pocket4.Type = "ThroughAll"
pocket4.Reversed = True

doc.recompute()
